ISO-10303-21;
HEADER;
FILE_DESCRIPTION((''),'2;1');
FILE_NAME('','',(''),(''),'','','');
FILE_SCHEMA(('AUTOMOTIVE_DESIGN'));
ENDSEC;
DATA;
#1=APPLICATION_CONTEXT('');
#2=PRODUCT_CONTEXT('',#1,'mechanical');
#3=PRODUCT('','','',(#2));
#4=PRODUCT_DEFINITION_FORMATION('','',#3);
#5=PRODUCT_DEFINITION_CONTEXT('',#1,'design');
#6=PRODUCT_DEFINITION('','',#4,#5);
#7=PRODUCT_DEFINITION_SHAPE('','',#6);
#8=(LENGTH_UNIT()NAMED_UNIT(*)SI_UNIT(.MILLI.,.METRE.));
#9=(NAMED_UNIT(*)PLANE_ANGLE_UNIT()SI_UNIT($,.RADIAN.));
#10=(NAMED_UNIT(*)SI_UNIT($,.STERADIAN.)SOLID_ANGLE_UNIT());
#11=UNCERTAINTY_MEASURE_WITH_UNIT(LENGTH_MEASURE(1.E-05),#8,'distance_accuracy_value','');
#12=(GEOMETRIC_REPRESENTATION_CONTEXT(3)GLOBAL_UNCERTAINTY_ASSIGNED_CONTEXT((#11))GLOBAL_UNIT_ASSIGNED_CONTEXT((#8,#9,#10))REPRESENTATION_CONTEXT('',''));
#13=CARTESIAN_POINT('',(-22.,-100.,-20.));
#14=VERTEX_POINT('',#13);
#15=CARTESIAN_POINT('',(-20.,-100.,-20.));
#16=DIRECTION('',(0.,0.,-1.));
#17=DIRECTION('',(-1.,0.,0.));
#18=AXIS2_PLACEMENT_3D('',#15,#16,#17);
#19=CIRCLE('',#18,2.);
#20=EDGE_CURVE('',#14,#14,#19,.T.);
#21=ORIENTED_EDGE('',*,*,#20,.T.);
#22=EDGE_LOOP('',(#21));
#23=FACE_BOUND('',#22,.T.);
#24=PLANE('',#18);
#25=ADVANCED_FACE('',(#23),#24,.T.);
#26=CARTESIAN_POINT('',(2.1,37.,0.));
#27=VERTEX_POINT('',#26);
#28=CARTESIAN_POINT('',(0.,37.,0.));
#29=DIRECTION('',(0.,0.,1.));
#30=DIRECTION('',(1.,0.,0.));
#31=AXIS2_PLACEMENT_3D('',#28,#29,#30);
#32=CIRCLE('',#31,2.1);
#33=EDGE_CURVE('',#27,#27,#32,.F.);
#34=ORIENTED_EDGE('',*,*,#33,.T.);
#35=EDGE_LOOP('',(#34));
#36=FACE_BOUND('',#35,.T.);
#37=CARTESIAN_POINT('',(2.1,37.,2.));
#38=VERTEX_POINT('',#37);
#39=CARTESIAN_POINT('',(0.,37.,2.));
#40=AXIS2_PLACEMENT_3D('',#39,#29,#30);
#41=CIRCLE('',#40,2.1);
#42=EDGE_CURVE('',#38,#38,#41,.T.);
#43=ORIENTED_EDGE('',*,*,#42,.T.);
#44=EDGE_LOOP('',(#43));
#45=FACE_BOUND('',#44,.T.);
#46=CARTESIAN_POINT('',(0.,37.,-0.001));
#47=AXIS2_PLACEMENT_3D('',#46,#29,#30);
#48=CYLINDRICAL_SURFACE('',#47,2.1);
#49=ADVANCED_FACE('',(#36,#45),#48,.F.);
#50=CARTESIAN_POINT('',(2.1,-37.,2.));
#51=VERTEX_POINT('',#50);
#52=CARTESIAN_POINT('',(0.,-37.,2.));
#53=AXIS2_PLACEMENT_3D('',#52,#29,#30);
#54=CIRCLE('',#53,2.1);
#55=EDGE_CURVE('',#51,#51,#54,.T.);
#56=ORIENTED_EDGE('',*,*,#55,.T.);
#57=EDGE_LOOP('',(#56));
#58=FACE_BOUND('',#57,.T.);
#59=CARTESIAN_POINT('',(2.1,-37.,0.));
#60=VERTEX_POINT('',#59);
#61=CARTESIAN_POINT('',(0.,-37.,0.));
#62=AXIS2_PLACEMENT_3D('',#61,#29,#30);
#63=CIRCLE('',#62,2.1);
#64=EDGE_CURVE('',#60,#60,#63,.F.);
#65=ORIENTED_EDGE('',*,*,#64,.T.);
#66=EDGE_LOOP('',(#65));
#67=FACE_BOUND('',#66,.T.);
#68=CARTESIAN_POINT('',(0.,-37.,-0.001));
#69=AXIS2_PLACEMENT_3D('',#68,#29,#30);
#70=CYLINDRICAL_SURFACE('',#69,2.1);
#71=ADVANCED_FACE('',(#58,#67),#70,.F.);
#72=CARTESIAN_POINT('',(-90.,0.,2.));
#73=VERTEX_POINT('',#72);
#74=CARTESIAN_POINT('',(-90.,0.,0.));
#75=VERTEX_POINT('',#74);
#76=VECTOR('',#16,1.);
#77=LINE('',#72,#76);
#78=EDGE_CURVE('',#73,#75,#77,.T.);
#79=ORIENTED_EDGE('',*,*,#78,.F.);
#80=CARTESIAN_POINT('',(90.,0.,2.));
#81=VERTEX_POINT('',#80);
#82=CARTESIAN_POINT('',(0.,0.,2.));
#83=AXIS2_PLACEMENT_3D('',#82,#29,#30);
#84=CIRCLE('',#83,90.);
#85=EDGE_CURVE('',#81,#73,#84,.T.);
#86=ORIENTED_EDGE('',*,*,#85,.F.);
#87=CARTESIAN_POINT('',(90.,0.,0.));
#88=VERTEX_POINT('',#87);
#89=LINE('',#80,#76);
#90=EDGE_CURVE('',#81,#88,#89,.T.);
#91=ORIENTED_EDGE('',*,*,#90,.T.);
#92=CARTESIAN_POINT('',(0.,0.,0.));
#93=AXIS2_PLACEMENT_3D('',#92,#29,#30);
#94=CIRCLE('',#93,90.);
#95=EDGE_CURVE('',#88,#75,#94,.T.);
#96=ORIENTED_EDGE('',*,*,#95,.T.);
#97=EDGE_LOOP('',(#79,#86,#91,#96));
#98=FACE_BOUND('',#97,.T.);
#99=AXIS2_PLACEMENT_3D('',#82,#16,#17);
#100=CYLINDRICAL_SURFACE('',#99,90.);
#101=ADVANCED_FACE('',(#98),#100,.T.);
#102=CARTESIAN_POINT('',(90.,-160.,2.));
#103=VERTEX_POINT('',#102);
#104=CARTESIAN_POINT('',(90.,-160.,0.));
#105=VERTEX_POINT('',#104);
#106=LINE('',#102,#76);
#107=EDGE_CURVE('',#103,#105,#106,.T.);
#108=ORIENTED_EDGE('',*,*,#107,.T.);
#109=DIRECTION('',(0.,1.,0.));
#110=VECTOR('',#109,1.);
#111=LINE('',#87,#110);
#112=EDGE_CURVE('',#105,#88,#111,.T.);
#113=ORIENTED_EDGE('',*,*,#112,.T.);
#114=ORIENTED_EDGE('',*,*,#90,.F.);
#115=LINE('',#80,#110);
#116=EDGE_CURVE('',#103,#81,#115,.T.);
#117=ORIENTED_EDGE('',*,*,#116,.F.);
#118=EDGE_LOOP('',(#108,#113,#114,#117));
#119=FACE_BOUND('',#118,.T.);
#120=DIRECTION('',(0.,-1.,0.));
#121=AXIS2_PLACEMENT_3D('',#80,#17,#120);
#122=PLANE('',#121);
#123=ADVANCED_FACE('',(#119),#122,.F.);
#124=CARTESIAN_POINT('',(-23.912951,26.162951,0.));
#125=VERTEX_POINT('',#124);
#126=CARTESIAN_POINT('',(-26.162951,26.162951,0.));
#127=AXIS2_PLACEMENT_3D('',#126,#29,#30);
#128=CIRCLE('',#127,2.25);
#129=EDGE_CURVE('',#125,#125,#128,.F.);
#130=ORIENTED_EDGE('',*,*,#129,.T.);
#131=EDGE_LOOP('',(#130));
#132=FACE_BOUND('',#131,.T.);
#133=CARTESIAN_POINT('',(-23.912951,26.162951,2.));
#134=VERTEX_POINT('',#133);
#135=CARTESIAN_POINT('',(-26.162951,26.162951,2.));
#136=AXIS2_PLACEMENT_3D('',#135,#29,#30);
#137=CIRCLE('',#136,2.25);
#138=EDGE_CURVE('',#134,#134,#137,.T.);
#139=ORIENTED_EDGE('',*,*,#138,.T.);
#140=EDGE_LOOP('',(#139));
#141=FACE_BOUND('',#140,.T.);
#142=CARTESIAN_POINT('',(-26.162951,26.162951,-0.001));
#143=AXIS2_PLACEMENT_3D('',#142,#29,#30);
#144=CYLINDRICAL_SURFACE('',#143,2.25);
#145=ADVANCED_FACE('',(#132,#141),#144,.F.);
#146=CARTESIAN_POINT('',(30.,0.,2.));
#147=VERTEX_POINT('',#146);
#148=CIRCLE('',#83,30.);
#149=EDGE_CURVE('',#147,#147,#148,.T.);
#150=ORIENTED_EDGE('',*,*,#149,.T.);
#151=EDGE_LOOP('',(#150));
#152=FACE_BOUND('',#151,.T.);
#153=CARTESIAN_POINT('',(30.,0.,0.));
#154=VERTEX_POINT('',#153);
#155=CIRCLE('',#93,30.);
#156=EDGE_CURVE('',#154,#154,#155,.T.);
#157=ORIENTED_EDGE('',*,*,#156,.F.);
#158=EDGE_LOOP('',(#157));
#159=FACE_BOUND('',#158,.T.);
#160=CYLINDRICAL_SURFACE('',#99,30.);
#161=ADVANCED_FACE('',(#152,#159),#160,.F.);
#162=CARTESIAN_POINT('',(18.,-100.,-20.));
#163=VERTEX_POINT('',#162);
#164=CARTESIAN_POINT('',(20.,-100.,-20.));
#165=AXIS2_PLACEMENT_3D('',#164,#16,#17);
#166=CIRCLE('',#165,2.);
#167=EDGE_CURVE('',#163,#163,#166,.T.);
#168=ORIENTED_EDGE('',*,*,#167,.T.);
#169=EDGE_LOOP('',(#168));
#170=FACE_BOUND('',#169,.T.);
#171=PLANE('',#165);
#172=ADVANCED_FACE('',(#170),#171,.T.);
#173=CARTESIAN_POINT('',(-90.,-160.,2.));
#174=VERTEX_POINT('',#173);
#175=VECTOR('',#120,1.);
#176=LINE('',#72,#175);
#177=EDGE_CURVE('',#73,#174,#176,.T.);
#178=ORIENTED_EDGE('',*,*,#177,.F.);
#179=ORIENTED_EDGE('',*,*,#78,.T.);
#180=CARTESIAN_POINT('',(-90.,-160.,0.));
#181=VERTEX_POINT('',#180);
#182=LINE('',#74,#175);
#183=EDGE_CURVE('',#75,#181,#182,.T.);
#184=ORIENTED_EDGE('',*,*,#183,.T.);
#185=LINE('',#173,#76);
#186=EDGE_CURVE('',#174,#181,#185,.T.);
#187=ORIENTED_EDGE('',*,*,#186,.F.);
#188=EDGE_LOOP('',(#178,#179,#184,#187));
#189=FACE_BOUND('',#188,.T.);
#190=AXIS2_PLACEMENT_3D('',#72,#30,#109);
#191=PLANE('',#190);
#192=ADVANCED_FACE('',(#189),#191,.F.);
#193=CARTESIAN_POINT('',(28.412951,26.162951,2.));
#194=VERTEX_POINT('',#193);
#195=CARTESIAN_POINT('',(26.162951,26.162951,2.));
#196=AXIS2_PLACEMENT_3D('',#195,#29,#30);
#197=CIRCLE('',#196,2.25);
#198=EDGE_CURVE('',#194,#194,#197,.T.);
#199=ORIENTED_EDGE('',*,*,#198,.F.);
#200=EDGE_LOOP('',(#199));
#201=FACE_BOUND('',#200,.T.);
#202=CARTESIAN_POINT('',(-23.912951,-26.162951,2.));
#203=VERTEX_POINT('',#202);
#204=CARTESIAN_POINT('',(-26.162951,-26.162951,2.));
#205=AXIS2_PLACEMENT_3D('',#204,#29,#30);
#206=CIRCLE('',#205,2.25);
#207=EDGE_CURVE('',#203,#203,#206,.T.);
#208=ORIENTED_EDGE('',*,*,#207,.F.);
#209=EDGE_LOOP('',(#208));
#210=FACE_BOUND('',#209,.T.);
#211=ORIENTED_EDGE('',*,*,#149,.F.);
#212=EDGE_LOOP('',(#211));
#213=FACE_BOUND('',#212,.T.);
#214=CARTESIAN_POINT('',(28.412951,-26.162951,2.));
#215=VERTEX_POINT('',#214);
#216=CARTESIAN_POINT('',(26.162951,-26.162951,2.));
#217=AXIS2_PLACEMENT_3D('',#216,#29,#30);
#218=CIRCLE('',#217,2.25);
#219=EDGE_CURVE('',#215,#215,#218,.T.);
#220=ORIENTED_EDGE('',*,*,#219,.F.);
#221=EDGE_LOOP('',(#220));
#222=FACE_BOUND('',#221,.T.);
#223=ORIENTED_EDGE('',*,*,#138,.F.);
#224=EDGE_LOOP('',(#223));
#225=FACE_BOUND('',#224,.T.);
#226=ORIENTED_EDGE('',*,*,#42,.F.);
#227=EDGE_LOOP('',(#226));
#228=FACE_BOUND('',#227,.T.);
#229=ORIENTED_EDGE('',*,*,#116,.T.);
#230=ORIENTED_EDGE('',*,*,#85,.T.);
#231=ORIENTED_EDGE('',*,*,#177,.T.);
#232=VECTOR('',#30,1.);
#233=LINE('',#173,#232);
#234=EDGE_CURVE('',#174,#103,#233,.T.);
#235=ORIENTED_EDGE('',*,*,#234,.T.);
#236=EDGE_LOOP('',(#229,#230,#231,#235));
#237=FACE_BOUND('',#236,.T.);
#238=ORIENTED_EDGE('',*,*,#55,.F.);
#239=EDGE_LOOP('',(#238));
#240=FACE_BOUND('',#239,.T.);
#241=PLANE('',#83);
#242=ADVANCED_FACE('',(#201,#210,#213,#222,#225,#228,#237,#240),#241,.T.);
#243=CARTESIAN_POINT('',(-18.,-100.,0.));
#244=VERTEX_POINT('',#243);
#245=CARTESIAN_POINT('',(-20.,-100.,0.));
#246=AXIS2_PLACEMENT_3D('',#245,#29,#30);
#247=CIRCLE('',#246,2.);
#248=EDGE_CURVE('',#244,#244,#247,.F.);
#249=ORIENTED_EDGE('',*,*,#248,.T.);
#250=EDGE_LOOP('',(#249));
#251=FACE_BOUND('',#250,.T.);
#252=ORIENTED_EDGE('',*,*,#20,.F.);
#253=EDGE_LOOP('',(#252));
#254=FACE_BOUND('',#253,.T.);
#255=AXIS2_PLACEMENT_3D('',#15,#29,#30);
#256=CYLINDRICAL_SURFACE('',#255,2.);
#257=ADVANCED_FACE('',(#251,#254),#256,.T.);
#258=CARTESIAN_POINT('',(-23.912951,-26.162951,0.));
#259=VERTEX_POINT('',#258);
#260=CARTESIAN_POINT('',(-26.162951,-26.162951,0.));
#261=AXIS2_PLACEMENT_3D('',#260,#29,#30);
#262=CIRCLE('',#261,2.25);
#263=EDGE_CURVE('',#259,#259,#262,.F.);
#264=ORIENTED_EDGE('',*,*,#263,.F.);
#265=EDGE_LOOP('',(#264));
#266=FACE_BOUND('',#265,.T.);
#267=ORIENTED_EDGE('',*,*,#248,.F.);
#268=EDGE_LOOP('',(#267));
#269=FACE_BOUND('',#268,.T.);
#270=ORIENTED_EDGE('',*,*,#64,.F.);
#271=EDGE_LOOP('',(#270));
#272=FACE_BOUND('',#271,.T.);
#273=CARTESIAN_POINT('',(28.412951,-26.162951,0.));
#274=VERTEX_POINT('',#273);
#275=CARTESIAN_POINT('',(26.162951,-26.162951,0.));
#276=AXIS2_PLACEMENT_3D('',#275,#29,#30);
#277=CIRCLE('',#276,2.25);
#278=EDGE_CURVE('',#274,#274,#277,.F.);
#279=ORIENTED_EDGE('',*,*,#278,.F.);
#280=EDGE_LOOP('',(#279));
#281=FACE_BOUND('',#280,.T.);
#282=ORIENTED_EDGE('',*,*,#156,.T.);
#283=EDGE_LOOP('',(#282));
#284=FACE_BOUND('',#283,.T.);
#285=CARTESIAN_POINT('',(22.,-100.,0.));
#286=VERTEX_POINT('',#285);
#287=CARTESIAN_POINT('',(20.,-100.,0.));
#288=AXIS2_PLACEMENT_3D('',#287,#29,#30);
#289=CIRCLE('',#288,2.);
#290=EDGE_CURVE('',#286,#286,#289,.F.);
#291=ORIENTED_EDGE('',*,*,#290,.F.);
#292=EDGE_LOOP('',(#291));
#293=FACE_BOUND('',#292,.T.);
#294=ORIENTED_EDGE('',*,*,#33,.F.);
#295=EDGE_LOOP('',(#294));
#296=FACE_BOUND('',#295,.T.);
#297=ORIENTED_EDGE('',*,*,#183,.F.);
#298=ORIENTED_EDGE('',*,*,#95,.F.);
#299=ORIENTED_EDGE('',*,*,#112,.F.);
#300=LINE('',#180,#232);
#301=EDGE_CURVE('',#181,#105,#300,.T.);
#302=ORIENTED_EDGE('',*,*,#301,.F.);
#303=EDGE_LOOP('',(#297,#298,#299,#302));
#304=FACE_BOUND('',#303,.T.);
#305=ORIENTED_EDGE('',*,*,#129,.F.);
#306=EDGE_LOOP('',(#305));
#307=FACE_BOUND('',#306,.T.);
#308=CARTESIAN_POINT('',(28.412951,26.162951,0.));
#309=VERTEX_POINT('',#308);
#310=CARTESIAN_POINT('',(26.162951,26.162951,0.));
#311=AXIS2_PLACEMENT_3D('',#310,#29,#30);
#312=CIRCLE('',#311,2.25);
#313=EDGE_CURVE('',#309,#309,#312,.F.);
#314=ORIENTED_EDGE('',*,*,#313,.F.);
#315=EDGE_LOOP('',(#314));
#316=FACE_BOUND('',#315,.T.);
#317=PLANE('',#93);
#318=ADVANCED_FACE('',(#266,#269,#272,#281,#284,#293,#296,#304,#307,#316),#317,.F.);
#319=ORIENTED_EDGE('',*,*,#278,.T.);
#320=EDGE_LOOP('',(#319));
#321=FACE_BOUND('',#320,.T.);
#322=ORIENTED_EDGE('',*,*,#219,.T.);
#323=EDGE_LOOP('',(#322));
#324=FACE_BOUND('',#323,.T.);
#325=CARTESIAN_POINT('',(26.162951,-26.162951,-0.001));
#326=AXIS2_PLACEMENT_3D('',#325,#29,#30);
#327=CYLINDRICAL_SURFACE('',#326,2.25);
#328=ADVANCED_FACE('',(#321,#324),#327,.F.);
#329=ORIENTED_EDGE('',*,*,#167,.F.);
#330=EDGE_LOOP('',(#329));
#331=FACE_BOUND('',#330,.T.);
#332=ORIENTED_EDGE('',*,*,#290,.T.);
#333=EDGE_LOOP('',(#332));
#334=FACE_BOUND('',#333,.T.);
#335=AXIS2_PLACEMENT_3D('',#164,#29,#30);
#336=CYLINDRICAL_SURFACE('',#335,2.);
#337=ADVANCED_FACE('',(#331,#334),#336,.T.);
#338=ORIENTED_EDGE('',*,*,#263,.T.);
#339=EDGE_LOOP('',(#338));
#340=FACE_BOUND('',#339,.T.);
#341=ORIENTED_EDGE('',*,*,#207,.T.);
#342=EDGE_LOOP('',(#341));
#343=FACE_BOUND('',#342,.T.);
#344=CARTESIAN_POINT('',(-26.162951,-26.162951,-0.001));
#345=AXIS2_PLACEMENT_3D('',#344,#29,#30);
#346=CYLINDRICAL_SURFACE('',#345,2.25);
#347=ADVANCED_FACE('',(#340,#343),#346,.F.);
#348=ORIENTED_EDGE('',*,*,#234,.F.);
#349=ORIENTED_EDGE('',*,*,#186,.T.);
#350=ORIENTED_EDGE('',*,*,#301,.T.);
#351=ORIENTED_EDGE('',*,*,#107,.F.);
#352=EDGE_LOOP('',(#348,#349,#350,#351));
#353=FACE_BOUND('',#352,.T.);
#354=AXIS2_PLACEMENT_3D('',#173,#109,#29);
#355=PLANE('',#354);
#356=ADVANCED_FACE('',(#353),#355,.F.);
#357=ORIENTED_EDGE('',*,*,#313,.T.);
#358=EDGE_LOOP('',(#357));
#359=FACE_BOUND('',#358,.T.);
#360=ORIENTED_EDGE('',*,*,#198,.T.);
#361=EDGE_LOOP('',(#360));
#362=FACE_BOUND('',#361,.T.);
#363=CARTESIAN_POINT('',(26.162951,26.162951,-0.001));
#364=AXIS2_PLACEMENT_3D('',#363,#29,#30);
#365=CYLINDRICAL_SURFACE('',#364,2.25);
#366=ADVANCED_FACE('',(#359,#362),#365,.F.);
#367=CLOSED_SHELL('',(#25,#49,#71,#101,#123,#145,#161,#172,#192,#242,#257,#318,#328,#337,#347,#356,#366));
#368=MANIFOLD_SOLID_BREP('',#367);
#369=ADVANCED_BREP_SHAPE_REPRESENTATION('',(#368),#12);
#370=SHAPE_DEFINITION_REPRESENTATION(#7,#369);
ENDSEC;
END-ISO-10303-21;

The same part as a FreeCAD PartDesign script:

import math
import FreeCAD as App
import Part
import Sketcher

V = App.Vector
Q = App.Units.Quantity

doc = App.newDocument("Part")
body = doc.addObject("PartDesign::Body", "Body")

# Sketch on XY plane
sketch1 = body.newObject("Sketcher::SketchObject", "Sketch")
sketch1.AttachmentSupport = (doc.getObject("XY_Plane"), [""])
sketch1.MapMode = "FlatFace"
sketch1.addGeometry([
    Part.LineSegment(V(-90, -160, 0), V(90, -160, 0)),  # 0
    Part.LineSegment(V(90, -160, 0), V(90, 0, 0)),  # 1
    Part.ArcOfCircle(Part.Circle(V(0, 0, 0), V(0, 0, 1), 90), math.radians(0), math.radians(180)),  # 2
    Part.LineSegment(V(-90, 0, 0), V(-90, -160, 0)),  # 3
    Part.Circle(V(0, 0, 0), V(0, 0, 1), 30),  # 4
], False)
sketch1.addConstraint([
    Sketcher.Constraint("Coincident", 0, 2, 1, 1),
    Sketcher.Constraint("Tangent", 1, 2, 2, 1),
    Sketcher.Constraint("Tangent", 2, 2, 3, 1),
    Sketcher.Constraint("Coincident", 3, 2, 0, 1),
    Sketcher.Constraint("Horizontal", 0),
    Sketcher.Constraint("Vertical", 1),
    Sketcher.Constraint("Vertical", 3),
    Sketcher.Constraint("Coincident", 2, 3, -1, 1),
    Sketcher.Constraint("Coincident", 4, 3, -1, 1),
    Sketcher.Constraint("Diameter", 4, Q("60 mm")),
    Sketcher.Constraint("Radius", 2, Q("90 mm")),
    Sketcher.Constraint("DistanceY", 1, 1, 1, 2, Q("160 mm")),
])
pad1 = body.newObject("PartDesign::Pad", "Pad")
pad1.Profile = sketch1
pad1.Length = 2

# Sketch on XY plane
sketch2 = body.newObject("Sketcher::SketchObject", "Sketch001")
sketch2.AttachmentSupport = (doc.getObject("XY_Plane"), [""])
sketch2.MapMode = "FlatFace"
sketch2.AttachmentOffset = App.Placement(V(0, 0, 2), App.Rotation())
sketch2.addGeometry(Part.Circle(V(26.2, 26.2, 0), V(0, 0, 1), 2.2), False)
sketch2.addConstraint([
    Sketcher.Constraint("Diameter", 0, Q("4.5 mm")),
    Sketcher.Constraint("DistanceX", -1, 1, 0, 3, Q("26.162951 mm")),
    Sketcher.Constraint("DistanceY", -1, 1, 0, 3, Q("26.162951 mm")),
])
pocket1 = body.newObject("PartDesign::Pocket", "Pocket")
pocket1.Profile = sketch2
pocket1.Type = "UpToFirst"

# Sketch on XY plane
sketch3 = body.newObject("Sketcher::SketchObject", "Sketch002")
sketch3.AttachmentSupport = (doc.getObject("XY_Plane"), [""])
sketch3.MapMode = "FlatFace"
sketch3.AttachmentOffset = App.Placement(V(0, 0, 2), App.Rotation())
sketch3.addGeometry(Part.Circle(V(-26.2, -26.2, 0), V(0, 0, 1), 2.2), False)
sketch3.addConstraint([
    Sketcher.Constraint("Diameter", 0, Q("4.5 mm")),
    Sketcher.Constraint("DistanceX", 0, 3, -1, 1, Q("26.162951 mm")),
    Sketcher.Constraint("DistanceY", 0, 3, -1, 1, Q("26.162951 mm")),
])
pocket2 = body.newObject("PartDesign::Pocket", "Pocket001")
pocket2.Profile = sketch3
pocket2.Type = "UpToFirst"

# Sketch on XY plane
sketch4 = body.newObject("Sketcher::SketchObject", "Sketch003")
sketch4.AttachmentSupport = (doc.getObject("XY_Plane"), [""])
sketch4.MapMode = "FlatFace"
sketch4.AttachmentOffset = App.Placement(V(0, 0, 2), App.Rotation())
sketch4.addGeometry(Part.Circle(V(-26.2, 26.2, 0), V(0, 0, 1), 2.2), False)
sketch4.addConstraint([
    Sketcher.Constraint("Diameter", 0, Q("4.5 mm")),
    Sketcher.Constraint("DistanceX", 0, 3, -1, 1, Q("26.162951 mm")),
    Sketcher.Constraint("DistanceY", -1, 1, 0, 3, Q("26.162951 mm")),
])
pocket3 = body.newObject("PartDesign::Pocket", "Pocket002")
pocket3.Profile = sketch4
pocket3.Type = "UpToFirst"

# Sketch on XY plane
sketch5 = body.newObject("Sketcher::SketchObject", "Sketch004")
sketch5.AttachmentSupport = (doc.getObject("XY_Plane"), [""])
sketch5.MapMode = "FlatFace"
sketch5.AttachmentOffset = App.Placement(V(0, 0, 2), App.Rotation())
sketch5.addGeometry(Part.Circle(V(26.2, -26.2, 0), V(0, 0, 1), 2.2), False)
sketch5.addConstraint([
    Sketcher.Constraint("Diameter", 0, Q("4.5 mm")),
    Sketcher.Constraint("DistanceX", -1, 1, 0, 3, Q("26.162951 mm")),
    Sketcher.Constraint("DistanceY", 0, 3, -1, 1, Q("26.162951 mm")),
])
pocket4 = body.newObject("PartDesign::Pocket", "Pocket003")
pocket4.Profile = sketch5
pocket4.Type = "UpToFirst"

# Sketch on XY plane
sketch6 = body.newObject("Sketcher::SketchObject", "Sketch005")
sketch6.AttachmentSupport = (doc.getObject("XY_Plane"), [""])
sketch6.MapMode = "FlatFace"
sketch6.AttachmentOffset = App.Placement(V(0, 0, 2), App.Rotation())
sketch6.addGeometry(Part.Circle(V(0, 37, 0), V(0, 0, 1), 2.1), False)
sketch6.addConstraint([
    Sketcher.Constraint("PointOnObject", 0, 3, -2),
    Sketcher.Constraint("Diameter", 0, Q("4.2 mm")),
    Sketcher.Constraint("DistanceY", -1, 1, 0, 3, Q("37 mm")),
])
pocket5 = body.newObject("PartDesign::Pocket", "Pocket004")
pocket5.Profile = sketch6
pocket5.Type = "UpToFirst"

# Sketch on XY plane
sketch7 = body.newObject("Sketcher::SketchObject", "Sketch006")
sketch7.AttachmentSupport = (doc.getObject("XY_Plane"), [""])
sketch7.MapMode = "FlatFace"
sketch7.AttachmentOffset = App.Placement(V(0, 0, 2), App.Rotation())
sketch7.addGeometry(Part.Circle(V(0, -37, 0), V(0, 0, 1), 2.1), False)
sketch7.addConstraint([
    Sketcher.Constraint("PointOnObject", 0, 3, -2),
    Sketcher.Constraint("Diameter", 0, Q("4.2 mm")),
    Sketcher.Constraint("DistanceY", 0, 3, -1, 1, Q("37 mm")),
])
pocket6 = body.newObject("PartDesign::Pocket", "Pocket005")
pocket6.Profile = sketch7
pocket6.Type = "UpToFirst"

# Sketch on XY plane
sketch8 = body.newObject("Sketcher::SketchObject", "Sketch007")
sketch8.AttachmentSupport = (doc.getObject("XY_Plane"), [""])
sketch8.MapMode = "FlatFace"
sketch8.addGeometry([
    Part.Circle(V(20, -100, 0), V(0, 0, 1), 2),
    Part.Circle(V(-20, -100, 0), V(0, 0, 1), 2),
], False)
sketch8.addConstraint([
    Sketcher.Constraint("Equal", 0, 1),
    Sketcher.Constraint("Symmetric", 0, 3, 1, 3, -2),
    Sketcher.Constraint("Diameter", 0, Q("4 mm")),
    Sketcher.Constraint("DistanceX", -1, 1, 0, 3, Q("20 mm")),
    Sketcher.Constraint("DistanceY", 0, 3, -1, 1, Q("100 mm")),
])
pad2 = body.newObject("PartDesign::Pad", "Pad001")
pad2.Profile = sketch8
pad2.Length = 20
pad2.Reversed = True

doc.recompute()
